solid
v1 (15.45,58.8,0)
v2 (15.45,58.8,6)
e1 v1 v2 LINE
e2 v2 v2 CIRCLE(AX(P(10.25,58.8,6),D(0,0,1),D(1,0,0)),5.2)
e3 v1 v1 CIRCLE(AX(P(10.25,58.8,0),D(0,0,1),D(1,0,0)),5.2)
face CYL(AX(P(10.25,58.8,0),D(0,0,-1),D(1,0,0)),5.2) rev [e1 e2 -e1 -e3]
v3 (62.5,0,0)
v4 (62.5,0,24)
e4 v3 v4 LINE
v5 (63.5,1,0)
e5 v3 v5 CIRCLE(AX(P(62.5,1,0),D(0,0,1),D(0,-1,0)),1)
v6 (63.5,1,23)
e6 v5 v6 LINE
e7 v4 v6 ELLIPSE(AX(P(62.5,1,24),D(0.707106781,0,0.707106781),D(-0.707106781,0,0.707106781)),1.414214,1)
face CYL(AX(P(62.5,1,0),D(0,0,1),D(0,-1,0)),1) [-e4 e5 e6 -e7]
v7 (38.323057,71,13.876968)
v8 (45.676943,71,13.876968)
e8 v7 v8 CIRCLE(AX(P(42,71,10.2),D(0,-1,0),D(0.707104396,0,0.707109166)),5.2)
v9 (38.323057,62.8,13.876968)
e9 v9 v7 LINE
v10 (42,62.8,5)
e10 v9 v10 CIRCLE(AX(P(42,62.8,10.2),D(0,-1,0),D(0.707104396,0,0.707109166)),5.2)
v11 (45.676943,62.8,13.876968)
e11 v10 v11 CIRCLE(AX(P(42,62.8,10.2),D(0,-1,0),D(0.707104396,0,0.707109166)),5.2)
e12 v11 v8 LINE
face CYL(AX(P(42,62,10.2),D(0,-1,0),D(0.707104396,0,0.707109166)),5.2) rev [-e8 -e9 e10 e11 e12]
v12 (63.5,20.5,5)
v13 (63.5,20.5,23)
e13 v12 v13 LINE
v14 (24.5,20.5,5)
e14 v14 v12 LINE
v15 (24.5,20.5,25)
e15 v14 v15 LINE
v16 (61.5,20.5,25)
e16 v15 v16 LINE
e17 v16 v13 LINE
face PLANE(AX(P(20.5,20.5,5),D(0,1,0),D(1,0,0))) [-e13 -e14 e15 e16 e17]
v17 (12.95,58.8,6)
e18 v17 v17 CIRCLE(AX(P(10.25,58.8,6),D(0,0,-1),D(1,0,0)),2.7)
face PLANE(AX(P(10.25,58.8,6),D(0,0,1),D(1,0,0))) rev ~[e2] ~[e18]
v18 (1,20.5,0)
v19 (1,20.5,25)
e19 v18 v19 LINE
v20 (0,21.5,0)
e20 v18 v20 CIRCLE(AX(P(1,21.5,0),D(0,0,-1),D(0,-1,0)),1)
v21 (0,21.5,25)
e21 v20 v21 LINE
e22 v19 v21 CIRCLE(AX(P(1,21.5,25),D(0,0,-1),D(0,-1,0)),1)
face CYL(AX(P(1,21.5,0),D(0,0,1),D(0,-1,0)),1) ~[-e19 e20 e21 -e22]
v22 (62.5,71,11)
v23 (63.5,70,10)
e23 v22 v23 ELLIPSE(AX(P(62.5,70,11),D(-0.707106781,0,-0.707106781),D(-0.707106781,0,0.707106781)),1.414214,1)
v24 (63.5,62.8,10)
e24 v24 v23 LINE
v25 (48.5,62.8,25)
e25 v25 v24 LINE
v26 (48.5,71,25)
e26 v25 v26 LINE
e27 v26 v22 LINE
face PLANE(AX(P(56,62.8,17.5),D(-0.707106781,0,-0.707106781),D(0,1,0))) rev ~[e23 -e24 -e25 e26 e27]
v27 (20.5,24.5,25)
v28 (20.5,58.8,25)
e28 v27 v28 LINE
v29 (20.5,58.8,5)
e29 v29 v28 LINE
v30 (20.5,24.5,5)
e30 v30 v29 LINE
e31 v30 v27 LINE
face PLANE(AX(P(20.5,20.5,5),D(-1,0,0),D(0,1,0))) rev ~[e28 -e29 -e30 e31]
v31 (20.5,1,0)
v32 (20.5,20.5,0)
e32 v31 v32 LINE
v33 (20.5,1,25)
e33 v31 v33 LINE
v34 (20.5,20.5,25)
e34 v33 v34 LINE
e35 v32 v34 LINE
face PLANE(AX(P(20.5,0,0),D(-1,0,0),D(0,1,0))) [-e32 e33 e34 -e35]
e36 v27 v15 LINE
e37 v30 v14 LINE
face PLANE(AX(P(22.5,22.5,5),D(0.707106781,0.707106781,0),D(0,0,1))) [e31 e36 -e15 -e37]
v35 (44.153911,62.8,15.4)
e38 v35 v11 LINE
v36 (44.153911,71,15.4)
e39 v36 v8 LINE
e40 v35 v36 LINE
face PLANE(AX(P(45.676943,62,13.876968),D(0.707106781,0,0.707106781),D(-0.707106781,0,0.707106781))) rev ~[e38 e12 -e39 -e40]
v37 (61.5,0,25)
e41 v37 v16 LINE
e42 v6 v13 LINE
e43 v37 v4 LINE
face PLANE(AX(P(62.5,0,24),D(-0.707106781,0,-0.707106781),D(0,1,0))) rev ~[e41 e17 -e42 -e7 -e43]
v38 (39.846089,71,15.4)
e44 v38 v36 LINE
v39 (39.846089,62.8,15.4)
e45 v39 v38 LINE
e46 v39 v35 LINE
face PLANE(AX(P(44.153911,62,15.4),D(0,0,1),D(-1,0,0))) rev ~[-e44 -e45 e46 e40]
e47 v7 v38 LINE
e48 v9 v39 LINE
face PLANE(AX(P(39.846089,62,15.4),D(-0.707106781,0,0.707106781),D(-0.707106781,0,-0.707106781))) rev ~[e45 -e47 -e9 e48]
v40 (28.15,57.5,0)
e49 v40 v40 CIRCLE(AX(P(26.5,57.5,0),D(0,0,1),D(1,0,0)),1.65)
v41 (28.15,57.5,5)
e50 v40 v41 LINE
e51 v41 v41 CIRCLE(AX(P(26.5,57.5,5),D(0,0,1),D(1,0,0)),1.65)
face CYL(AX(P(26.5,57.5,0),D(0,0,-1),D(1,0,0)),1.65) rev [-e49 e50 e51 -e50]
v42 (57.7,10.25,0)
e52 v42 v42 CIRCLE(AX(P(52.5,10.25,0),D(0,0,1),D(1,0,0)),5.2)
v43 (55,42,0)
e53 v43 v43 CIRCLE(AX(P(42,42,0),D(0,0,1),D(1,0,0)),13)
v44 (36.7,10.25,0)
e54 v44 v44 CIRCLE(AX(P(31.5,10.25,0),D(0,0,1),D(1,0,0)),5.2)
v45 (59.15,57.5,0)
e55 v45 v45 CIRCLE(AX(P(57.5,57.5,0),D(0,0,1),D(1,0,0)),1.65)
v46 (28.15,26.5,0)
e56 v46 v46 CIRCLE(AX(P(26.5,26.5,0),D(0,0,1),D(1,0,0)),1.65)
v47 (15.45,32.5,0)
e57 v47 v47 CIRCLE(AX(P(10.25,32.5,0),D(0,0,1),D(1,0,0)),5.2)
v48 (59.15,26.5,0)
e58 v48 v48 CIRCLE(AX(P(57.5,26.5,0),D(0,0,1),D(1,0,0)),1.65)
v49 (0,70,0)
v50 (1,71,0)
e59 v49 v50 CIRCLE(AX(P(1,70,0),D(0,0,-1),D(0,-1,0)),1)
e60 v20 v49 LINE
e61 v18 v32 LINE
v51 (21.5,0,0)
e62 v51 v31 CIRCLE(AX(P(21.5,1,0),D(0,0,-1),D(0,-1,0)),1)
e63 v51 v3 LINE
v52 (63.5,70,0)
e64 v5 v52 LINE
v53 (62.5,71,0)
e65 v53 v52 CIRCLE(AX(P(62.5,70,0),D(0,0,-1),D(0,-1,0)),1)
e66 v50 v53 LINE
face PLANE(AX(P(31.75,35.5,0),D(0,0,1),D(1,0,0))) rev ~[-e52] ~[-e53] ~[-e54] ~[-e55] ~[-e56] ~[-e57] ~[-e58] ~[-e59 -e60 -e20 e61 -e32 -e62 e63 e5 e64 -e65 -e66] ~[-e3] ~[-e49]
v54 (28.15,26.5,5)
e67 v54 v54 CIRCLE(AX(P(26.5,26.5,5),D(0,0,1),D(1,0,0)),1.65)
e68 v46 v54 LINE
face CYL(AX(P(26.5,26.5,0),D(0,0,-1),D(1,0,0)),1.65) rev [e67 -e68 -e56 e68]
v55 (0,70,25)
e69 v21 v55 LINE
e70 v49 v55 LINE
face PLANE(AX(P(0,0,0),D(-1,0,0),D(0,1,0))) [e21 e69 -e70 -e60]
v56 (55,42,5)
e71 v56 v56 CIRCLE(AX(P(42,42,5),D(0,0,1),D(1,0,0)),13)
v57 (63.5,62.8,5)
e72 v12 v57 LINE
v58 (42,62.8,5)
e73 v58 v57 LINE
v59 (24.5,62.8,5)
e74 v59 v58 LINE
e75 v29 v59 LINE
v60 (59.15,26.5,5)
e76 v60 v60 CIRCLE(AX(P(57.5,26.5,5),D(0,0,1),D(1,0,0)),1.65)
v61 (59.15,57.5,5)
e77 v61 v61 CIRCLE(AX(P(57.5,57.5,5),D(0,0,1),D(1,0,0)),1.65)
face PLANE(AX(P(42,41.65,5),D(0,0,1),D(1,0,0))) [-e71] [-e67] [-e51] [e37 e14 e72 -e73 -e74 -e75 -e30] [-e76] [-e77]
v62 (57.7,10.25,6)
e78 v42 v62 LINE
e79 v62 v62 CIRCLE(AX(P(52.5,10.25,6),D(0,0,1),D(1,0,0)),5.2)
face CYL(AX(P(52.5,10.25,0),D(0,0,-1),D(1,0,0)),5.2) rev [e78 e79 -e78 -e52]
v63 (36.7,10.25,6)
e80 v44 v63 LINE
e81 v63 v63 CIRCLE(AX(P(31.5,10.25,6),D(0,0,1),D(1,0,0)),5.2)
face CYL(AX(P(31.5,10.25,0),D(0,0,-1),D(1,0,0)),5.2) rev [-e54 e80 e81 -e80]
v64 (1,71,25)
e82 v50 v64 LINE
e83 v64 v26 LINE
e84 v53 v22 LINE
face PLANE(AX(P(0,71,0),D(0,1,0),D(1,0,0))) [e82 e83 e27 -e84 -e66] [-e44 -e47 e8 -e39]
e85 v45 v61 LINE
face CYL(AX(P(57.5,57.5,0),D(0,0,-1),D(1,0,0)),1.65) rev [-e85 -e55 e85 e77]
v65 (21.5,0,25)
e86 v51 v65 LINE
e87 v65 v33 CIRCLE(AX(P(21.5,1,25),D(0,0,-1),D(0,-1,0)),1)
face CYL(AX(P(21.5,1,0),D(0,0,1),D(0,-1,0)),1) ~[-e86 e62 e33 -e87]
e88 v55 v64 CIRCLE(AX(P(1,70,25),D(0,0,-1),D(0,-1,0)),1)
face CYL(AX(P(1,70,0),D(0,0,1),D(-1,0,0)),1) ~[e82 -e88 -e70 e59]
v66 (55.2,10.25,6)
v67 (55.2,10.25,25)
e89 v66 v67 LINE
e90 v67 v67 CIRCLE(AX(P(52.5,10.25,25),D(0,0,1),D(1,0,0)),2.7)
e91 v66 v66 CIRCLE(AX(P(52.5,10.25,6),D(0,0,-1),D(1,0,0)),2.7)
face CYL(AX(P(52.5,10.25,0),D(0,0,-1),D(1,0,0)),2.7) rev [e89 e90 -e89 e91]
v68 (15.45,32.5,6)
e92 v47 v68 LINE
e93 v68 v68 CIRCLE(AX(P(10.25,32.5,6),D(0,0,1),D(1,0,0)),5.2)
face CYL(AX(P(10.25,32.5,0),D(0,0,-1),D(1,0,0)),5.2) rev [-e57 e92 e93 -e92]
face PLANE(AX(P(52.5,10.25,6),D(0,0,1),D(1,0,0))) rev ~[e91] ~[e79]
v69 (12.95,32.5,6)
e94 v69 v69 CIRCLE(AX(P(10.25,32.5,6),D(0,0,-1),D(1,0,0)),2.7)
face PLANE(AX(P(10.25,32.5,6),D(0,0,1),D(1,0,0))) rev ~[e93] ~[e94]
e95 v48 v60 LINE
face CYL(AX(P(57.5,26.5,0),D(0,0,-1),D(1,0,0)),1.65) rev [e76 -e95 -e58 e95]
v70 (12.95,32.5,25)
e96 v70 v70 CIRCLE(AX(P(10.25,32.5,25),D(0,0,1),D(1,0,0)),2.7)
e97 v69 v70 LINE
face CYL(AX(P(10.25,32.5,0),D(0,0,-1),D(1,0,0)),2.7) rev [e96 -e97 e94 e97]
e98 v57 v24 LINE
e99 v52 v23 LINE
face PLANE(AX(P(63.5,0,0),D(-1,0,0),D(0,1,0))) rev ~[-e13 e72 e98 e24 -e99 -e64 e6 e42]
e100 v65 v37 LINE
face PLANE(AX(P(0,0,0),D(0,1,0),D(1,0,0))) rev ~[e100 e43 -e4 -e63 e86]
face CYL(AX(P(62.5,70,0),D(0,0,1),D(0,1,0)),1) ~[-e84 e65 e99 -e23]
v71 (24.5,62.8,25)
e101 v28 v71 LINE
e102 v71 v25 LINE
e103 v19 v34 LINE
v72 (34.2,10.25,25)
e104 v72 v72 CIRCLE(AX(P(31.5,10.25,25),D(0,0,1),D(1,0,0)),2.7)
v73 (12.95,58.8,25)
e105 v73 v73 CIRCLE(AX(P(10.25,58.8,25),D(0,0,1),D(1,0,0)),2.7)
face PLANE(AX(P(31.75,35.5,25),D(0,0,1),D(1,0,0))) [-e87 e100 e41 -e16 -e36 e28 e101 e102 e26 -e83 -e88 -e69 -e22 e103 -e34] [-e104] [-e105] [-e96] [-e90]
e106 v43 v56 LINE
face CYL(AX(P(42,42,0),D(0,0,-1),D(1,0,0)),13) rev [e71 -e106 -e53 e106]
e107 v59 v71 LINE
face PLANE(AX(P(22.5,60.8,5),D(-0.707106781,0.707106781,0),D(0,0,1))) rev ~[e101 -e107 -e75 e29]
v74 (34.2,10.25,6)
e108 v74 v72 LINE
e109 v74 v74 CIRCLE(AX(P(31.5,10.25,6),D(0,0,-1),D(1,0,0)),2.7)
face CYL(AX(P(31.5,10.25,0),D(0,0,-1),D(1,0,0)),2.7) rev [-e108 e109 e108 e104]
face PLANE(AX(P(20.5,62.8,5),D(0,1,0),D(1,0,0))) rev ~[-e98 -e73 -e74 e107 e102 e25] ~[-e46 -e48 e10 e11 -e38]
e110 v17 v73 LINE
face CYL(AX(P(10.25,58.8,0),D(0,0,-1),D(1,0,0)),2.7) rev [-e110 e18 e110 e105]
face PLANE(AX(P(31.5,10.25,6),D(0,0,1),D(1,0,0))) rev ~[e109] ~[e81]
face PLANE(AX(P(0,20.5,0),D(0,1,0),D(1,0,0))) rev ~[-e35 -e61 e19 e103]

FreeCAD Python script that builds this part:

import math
import FreeCAD as App
import Part
import Sketcher


def edges_at(feature, points):
    """Names of the edges that pass closest to the given points."""
    edges = feature.Shape.Edges
    near = lambda p: min(range(len(edges)), key=lambda i: edges[i].distToShape(Part.Vertex(*p))[0])
    return sorted({f"Edge{near(p) + 1}" for p in points})

doc = App.newDocument("Part")
body = doc.addObject("PartDesign::Body", "Body")

# Sketch on YZ plane
sketch1 = body.newObject("Sketcher::SketchObject", "Sketch")
sketch1.AttachmentSupport = (doc.getObject("YZ_Plane"), [""])
sketch1.MapMode = "FlatFace"
sketch1.addGeometry([
    Part.ArcOfCircle(Part.Circle(App.Vector(0, 0, 0), App.Vector(0, 0, 1), 5.2), math.radians(135), math.radians(405)),
    Part.LineSegment(App.Vector(3.7, 3.7, 0), App.Vector(2.2, 5.2, 0)),
    Part.LineSegment(App.Vector(2.2, 5.2, 0), App.Vector(-2.2, 5.2, 0)),
    Part.LineSegment(App.Vector(-2.2, 5.2, 0), App.Vector(-3.7, 3.7, 0)),
], False)
sketch1.addConstraint([
    Sketcher.Constraint("Coincident", 0, 2, 1, 1),
    Sketcher.Constraint("Coincident", 1, 2, 2, 1),
    Sketcher.Constraint("Coincident", 2, 2, 3, 1),
    Sketcher.Constraint("Coincident", 3, 2, 0, 1),
    Sketcher.Constraint("Horizontal", 2),
    Sketcher.Constraint("Coincident", 0, 3, -1, 1),
    Sketcher.Constraint("Perpendicular", 1, 3),
    Sketcher.Constraint("Horizontal", 0, 2, 3, 2),
    Sketcher.Constraint("Equal", 1, 3),
    Sketcher.Constraint("Radius", 0, 5.2),
    Sketcher.Constraint("DistanceY", -1, 1, 1, 2, 5.2),
    Sketcher.Constraint("DistanceY", -1, 1, 3, 2, 3.676968),
])
pad1 = body.newObject("PartDesign::Pad", "Pad")
pad1.Profile = sketch1
pad1.Length = 10
body2 = doc.addObject("PartDesign::Body", "Body001")
doc.recompute()

body.Placement = App.Placement(App.Vector(42, 62, 10.2), App.Rotation(App.Vector(0, 0, 1), 90))
boolean = body2.newObject("PartDesign::Boolean", "Boolean")
boolean.Type = "Fuse"
boolean.addObjects([body])
body3 = doc.addObject("PartDesign::Body", "Body002")
body3.AllowCompound = True

# Sketch on XY plane
sketch2 = body3.newObject("Sketcher::SketchObject", "Sketch001")
sketch2.AttachmentSupport = (doc.getObject("XY_Plane002"), [""])
sketch2.MapMode = "FlatFace"
sketch2.addGeometry([
    Part.Circle(App.Vector(31.5, 10.2, 0), App.Vector(0, 0, 1), 2.7),
    Part.Circle(App.Vector(52.5, 10.2, 0), App.Vector(0, 0, 1), 2.7),
    Part.Circle(App.Vector(10.2, 32.5, 0), App.Vector(0, 0, 1), 2.7),
    Part.Circle(App.Vector(10.2, 58.8, 0), App.Vector(0, 0, 1), 2.7),
], False)
sketch2.addConstraint([
    Sketcher.Constraint("Equal", 0, 1),
    Sketcher.Constraint("Equal", 1, 2),
    Sketcher.Constraint("Equal", 2, 3),
    Sketcher.Constraint("Horizontal", 0, 3, 1, 3),
    Sketcher.Constraint("Vertical", 2, 3, 3, 3),
    Sketcher.Constraint("Diameter", 0, 5.4),
    Sketcher.Constraint("DistanceX", 0, 3, 1, 3, 21.0),
    Sketcher.Constraint("DistanceX", -1, 1, 0, 3, 31.5),
    Sketcher.Constraint("DistanceY", -1, 1, 2, 3, 32.5),
    Sketcher.Constraint("DistanceY", -1, 1, 3, 3, 58.8),
    Sketcher.Constraint("DistanceY", -1, 1, 0, 3, 10.25),
    Sketcher.Constraint("DistanceX", -1, 1, 2, 3, 10.25),
])
pad2 = body3.newObject("PartDesign::Pad", "Pad001")
pad2.Profile = sketch2
pad2.Length = 25
body4 = doc.addObject("PartDesign::Body", "Body003")
body4.AllowCompound = True

# Sketch on XY plane
sketch3 = body4.newObject("Sketcher::SketchObject", "Sketch002")
sketch3.AttachmentSupport = (doc.getObject("XY_Plane003"), [""])
sketch3.MapMode = "FlatFace"
sketch3.addGeometry([
    Part.Circle(App.Vector(32, 10, 0), App.Vector(0, 0, 1), 5),
    Part.Circle(App.Vector(52, 10, 0), App.Vector(0, 0, 1), 5),
    Part.Circle(App.Vector(10, 32, 0), App.Vector(0, 0, 1), 5),
    Part.Circle(App.Vector(10, 59, 0), App.Vector(0, 0, 1), 5),
], False)
sketch3.addConstraint([
    Sketcher.Constraint("Equal", 0, 1),
    Sketcher.Constraint("Equal", 1, 2),
    Sketcher.Constraint("Equal", 2, 3),
    Sketcher.Constraint("Horizontal", 0, 3, 1, 3),
    Sketcher.Constraint("Vertical", 2, 3, 3, 3),
    Sketcher.Constraint("Diameter", 0, 10.4),
    Sketcher.Constraint("DistanceX", 0, 3, 1, 3, 21.0),
    Sketcher.Constraint("DistanceX", -1, 1, 0, 3, 31.5),
    Sketcher.Constraint("DistanceY", -1, 1, 2, 3, 32.5),
    Sketcher.Constraint("DistanceY", -1, 1, 3, 3, 58.8),
    Sketcher.Constraint("DistanceY", -1, 1, 0, 3, 10.25),
    Sketcher.Constraint("DistanceX", -1, 1, 2, 3, 10.25),
])
pad3 = body4.newObject("PartDesign::Pad", "Pad002")
pad3.Profile = sketch3
pad3.Length = 6
doc.recompute()

boolean2 = body4.newObject("PartDesign::Boolean", "Boolean001")
boolean2.Type = "Fuse"
boolean2.addObjects([body3])
doc.recompute()

boolean3 = body4.newObject("PartDesign::Boolean", "Boolean002")
boolean3.Type = "Fuse"
boolean3.addObjects([body2])
body5 = doc.addObject("PartDesign::Body", "Body004")
body5.AllowCompound = True

# Sketch on XY plane
sketch4 = body5.newObject("Sketcher::SketchObject", "Sketch003")
sketch4.AttachmentSupport = (doc.getObject("XY_Plane004"), [""])
sketch4.MapMode = "FlatFace"
sketch4.AttachmentOffset = App.Placement(App.Vector(0, 0, 25), App.Rotation())
sketch4.addGeometry([
    Part.Circle(App.Vector(42, 42, 0), App.Vector(0, 0, 1), 13),  # 0
    Part.Circle(App.Vector(26.5, 57.5, 0), App.Vector(0, 0, 1), 1.6),  # 1
    Part.Circle(App.Vector(57.5, 57.5, 0), App.Vector(0, 0, 1), 1.6),  # 2
    Part.Circle(App.Vector(57.5, 26.5, 0), App.Vector(0, 0, 1), 1.6),  # 3
    Part.Circle(App.Vector(26.5, 26.5, 0), App.Vector(0, 0, 1), 1.6),  # 4
], False)
sketch4.addConstraint([
    Sketcher.Constraint("Equal", 1, 2),
    Sketcher.Constraint("Equal", 2, 3),
    Sketcher.Constraint("Equal", 3, 4),
    Sketcher.Constraint("Horizontal", 1, 3, 2, 3),
    Sketcher.Constraint("Horizontal", 3, 3, 4, 3),
    Sketcher.Constraint("Vertical", 2, 3, 3, 3),
    Sketcher.Constraint("Vertical", 1, 3, 4, 3),
    Sketcher.Constraint("Diameter", 0, 26.0),
    Sketcher.Constraint("Diameter", 1, 3.3),
    Sketcher.Constraint("DistanceX", -1, 1, 0, 3, 42.0),
    Sketcher.Constraint("DistanceY", -1, 1, 0, 3, 42.0),
    Sketcher.Constraint("DistanceX", 1, 3, 2, 3, 31.0),
    Sketcher.Constraint("DistanceY", 3, 3, 2, 3, 31.0),
    Sketcher.Constraint("DistanceX", -1, 1, 1, 3, 26.5),
    Sketcher.Constraint("DistanceY", -1, 1, 1, 3, 57.5),
])
pad4 = body5.newObject("PartDesign::Pad", "Pad003")
pad4.Profile = sketch4
pad4.Length = 5
body6 = doc.addObject("PartDesign::Body", "Body005")
body6.AllowCompound = True
doc.recompute()

body5.Placement = App.Placement(App.Vector(0, 0, -25), App.Rotation(App.Vector(0, 0, 1), 0))
boolean4 = body6.newObject("PartDesign::Boolean", "Boolean003")
boolean4.Type = "Fuse"
boolean4.addObjects([body5])
body7 = doc.addObject("PartDesign::Body", "Body006")

# Sketch on XY plane
sketch5 = body7.newObject("Sketcher::SketchObject", "Sketch004")
sketch5.AttachmentSupport = (doc.getObject("XY_Plane006"), [""])
sketch5.MapMode = "FlatFace"
sketch5.AttachmentOffset = App.Placement(App.Vector(0, 0, 5), App.Rotation())
sketch5.addGeometry([
    Part.LineSegment(App.Vector(20, 63, 0), App.Vector(20, 20, 0)),
    Part.LineSegment(App.Vector(20, 20, 0), App.Vector(64, 20, 0)),
    Part.LineSegment(App.Vector(64, 20, 0), App.Vector(64, 63, 0)),
    Part.LineSegment(App.Vector(64, 63, 0), App.Vector(20, 63, 0)),
], False)
sketch5.addConstraint([
    Sketcher.Constraint("Coincident", 0, 2, 1, 1),
    Sketcher.Constraint("Coincident", 1, 2, 2, 1),
    Sketcher.Constraint("Coincident", 2, 2, 3, 1),
    Sketcher.Constraint("Coincident", 3, 2, 0, 1),
    Sketcher.Constraint("Vertical", 0),
    Sketcher.Constraint("Horizontal", 1),
    Sketcher.Constraint("Vertical", 2),
    Sketcher.Constraint("Horizontal", 3),
    Sketcher.Constraint("DistanceX", 1, 1, 1, 2, 43.0),
    Sketcher.Constraint("DistanceY", 0, 2, 0, 1, 42.3),
    Sketcher.Constraint("DistanceX", -1, 1, 0, 2, 20.5),
    Sketcher.Constraint("DistanceY", -1, 1, 0, 2, 20.5),
])
pad5 = body7.newObject("PartDesign::Pad", "Pad004")
pad5.Profile = sketch5
pad5.Length = 20
doc.recompute()

chamfer = body7.newObject("PartDesign::Chamfer", "Chamfer")
chamfer.Base = (pad5, edges_at(pad5, [(20.5, 20.5, 15), (20.5, 62.8, 15)]))
chamfer.Size = 4
doc.recompute()

boolean5 = body7.newObject("PartDesign::Boolean", "Boolean004")
boolean5.Type = "Fuse"
boolean5.addObjects([body6])
body8 = doc.addObject("PartDesign::Body", "Body007")

# Sketch on XY plane
sketch6 = body8.newObject("Sketcher::SketchObject", "Sketch005")
sketch6.AttachmentSupport = (doc.getObject("XY_Plane007"), [""])
sketch6.MapMode = "FlatFace"
sketch6.addGeometry([
    Part.LineSegment(App.Vector(0, 20, 0), App.Vector(0, 0, 0)),
    Part.LineSegment(App.Vector(0, 0, 0), App.Vector(20, 0, 0)),
    Part.LineSegment(App.Vector(20, 0, 0), App.Vector(20, 20, 0)),
    Part.LineSegment(App.Vector(20, 20, 0), App.Vector(0, 20, 0)),
], False)
sketch6.addConstraint([
    Sketcher.Constraint("Coincident", 0, 2, 1, 1),
    Sketcher.Constraint("Coincident", 1, 2, 2, 1),
    Sketcher.Constraint("Coincident", 2, 2, 3, 1),
    Sketcher.Constraint("Coincident", 3, 2, 0, 1),
    Sketcher.Constraint("Vertical", 0),
    Sketcher.Constraint("Horizontal", 1),
    Sketcher.Constraint("Vertical", 2),
    Sketcher.Constraint("Horizontal", 3),
    Sketcher.Constraint("Coincident", 0, 2, -1, 1),
    Sketcher.Constraint("Equal", 3, 0),
    Sketcher.Constraint("DistanceX", 1, 1, 1, 2, 20.5),
])
pad6 = body8.newObject("PartDesign::Pad", "Pad005")
pad6.Profile = sketch6
pad6.Length = 25
body9 = doc.addObject("PartDesign::Body", "Body008")

# Sketch on XY plane
sketch7 = body9.newObject("Sketcher::SketchObject", "Sketch006")
sketch7.AttachmentSupport = (doc.getObject("XY_Plane008"), [""])
sketch7.MapMode = "FlatFace"
sketch7.addGeometry([
    Part.LineSegment(App.Vector(0, 71, 0), App.Vector(0, 0, 0)),
    Part.LineSegment(App.Vector(0, 0, 0), App.Vector(64, 0, 0)),
    Part.LineSegment(App.Vector(64, 0, 0), App.Vector(64, 71, 0)),
    Part.LineSegment(App.Vector(64, 71, 0), App.Vector(0, 71, 0)),
], False)
sketch7.addConstraint([
    Sketcher.Constraint("Coincident", 0, 2, 1, 1),
    Sketcher.Constraint("Coincident", 1, 2, 2, 1),
    Sketcher.Constraint("Coincident", 2, 2, 3, 1),
    Sketcher.Constraint("Coincident", 3, 2, 0, 1),
    Sketcher.Constraint("Vertical", 0),
    Sketcher.Constraint("Horizontal", 1),
    Sketcher.Constraint("Vertical", 2),
    Sketcher.Constraint("Horizontal", 3),
    Sketcher.Constraint("Coincident", 0, 2, -1, 1),
    Sketcher.Constraint("DistanceY", 0, 2, 0, 1, 71.0),
    Sketcher.Constraint("DistanceX", 1, 1, 1, 2, 63.5),
])
pad7 = body9.newObject("PartDesign::Pad", "Pad006")
pad7.Profile = sketch7
pad7.Length = 25
doc.recompute()

boolean6 = body9.newObject("PartDesign::Boolean", "Boolean005")
boolean6.Type = "Cut"
boolean6.addObjects([body8])
doc.recompute()

boolean7 = body9.newObject("PartDesign::Boolean", "Boolean006")
boolean7.Type = "Cut"
boolean7.addObjects([body7])
doc.recompute()

boolean8 = body9.newObject("PartDesign::Boolean", "Boolean007")
boolean8.Type = "Cut"
boolean8.addObjects([body4])
doc.recompute()

chamfer2 = body9.newObject("PartDesign::Chamfer", "Chamfer001")
chamfer2.Base = (boolean8, edges_at(boolean8, [(63.5, 66.9, 25)]))
chamfer2.Size = 15
doc.recompute()

chamfer3 = body9.newObject("PartDesign::Chamfer", "Chamfer002")
chamfer3.Base = (chamfer2, edges_at(chamfer2, [(63.5, 10.25, 25)]))
chamfer3.Size = 2
doc.recompute()

fillet = body9.newObject("PartDesign::Fillet", "Fillet")
fillet.Base = (chamfer3, edges_at(chamfer3, [
    (63.5, 71, 5),
    (0, 71, 12.5),
    (0, 20.5, 12.5),
    (20.5, 0, 12.5),
    (63.5, 0, 11.5),
]))
fillet.Radius = 1

doc.recompute()
